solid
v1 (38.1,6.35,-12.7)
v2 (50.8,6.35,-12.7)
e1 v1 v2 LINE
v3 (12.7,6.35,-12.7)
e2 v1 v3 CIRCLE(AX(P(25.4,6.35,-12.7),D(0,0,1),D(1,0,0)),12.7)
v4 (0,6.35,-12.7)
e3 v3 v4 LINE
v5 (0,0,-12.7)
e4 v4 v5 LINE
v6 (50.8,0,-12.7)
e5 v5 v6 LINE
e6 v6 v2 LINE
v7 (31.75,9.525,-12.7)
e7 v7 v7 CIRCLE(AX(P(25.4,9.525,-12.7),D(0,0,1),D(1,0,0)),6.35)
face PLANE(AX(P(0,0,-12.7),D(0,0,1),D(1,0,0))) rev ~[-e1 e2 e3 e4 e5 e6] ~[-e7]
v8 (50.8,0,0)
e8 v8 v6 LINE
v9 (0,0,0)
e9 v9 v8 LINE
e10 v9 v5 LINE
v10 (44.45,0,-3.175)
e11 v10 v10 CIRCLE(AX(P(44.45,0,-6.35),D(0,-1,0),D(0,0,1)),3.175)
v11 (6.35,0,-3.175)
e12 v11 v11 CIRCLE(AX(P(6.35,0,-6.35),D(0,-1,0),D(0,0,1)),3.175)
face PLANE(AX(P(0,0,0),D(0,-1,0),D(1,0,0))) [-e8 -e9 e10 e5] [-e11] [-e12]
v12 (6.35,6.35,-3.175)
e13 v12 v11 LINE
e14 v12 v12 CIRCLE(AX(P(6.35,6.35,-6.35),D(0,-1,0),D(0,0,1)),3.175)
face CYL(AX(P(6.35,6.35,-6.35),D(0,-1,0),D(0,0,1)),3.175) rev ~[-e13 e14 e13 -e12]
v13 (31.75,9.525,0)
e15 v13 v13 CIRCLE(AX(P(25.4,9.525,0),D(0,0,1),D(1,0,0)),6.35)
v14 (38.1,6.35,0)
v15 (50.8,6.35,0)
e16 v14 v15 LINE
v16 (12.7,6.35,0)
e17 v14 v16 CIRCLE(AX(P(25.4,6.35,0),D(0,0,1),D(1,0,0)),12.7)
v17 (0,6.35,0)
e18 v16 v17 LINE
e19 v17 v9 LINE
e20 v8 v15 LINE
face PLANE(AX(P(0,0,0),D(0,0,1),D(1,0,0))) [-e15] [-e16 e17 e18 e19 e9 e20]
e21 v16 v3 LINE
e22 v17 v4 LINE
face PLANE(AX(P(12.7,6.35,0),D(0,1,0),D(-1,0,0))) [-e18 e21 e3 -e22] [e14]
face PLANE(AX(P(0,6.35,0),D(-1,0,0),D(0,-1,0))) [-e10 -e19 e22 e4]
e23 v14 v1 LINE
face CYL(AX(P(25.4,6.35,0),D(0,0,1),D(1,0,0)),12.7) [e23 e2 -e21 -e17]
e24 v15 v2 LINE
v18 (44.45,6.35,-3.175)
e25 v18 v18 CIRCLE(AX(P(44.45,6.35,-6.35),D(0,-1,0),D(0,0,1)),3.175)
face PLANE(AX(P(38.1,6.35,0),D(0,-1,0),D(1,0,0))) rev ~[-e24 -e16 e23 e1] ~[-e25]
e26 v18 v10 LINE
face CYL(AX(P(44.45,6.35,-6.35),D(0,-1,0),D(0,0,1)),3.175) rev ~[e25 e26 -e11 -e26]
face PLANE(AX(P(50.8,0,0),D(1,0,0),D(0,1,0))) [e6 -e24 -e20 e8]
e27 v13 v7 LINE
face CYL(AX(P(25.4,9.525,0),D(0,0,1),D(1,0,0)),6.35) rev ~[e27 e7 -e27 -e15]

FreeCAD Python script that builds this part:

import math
import FreeCAD as App
import Part
import Sketcher
Q = App.Units.Quantity

doc = App.newDocument("Part")
body = doc.addObject("PartDesign::Body", "Body")

# Sketch on XY plane
sketch1 = body.newObject("Sketcher::SketchObject", "Sketch")
sketch1.AttachmentSupport = (doc.getObject("XY_Plane"), [""])
sketch1.MapMode = "FlatFace"
sketch1.addGeometry([
    Part.LineSegment(App.Vector(0, 6.35, 0), App.Vector(0, 0, 0)),  # 0
    Part.LineSegment(App.Vector(0, 0, 0), App.Vector(50.8, 0, 0)),  # 1
    Part.LineSegment(App.Vector(50.8, 0, 0), App.Vector(50.8, 6.35, 0)),  # 2
    Part.LineSegment(App.Vector(50.8, 6.35, 0), App.Vector(38.1, 6.35, 0)),  # 3
    Part.ArcOfCircle(Part.Circle(App.Vector(25.4, 6.35, 0), App.Vector(0, 0, 1), 12.7), math.radians(0), math.radians(180)),  # 4
    Part.LineSegment(App.Vector(12.7, 6.35, 0), App.Vector(0, 6.35, 0)),  # 5
    Part.Circle(App.Vector(25.4, 9.525, 0), App.Vector(0, 0, 1), 6.35),  # 6
], False)
sketch1.addConstraint([
    Sketcher.Constraint("Coincident", 0, 2, 1, 1),
    Sketcher.Constraint("Coincident", 1, 2, 2, 1),
    Sketcher.Constraint("Coincident", 2, 2, 3, 1),
    Sketcher.Constraint("Coincident", 3, 2, 4, 1),
    Sketcher.Constraint("Coincident", 4, 2, 5, 1),
    Sketcher.Constraint("Coincident", 5, 2, 0, 1),
    Sketcher.Constraint("Vertical", 0),
    Sketcher.Constraint("Horizontal", 1),
    Sketcher.Constraint("Vertical", 2),
    Sketcher.Constraint("Horizontal", 3),
    Sketcher.Constraint("Horizontal", 5),
    Sketcher.Constraint("Coincident", 0, 2, -1, 1),
    Sketcher.Constraint("Horizontal", 4, 3, 2, 2),
    Sketcher.Constraint("Horizontal", 3, 2, 4, 2),
    Sketcher.Constraint("Vertical", 4, 3, 6, 3),
    Sketcher.Constraint("Equal", 3, 5),
    Sketcher.Constraint("Diameter", 6, Q("0.5 in")),
    Sketcher.Constraint("Radius", 4, Q("0.5 in")),
    Sketcher.Constraint("DistanceX", 1, 1, 1, 2, Q("2 in")),
    Sketcher.Constraint("DistanceY", 0, 2, 0, 1, Q("0.25 in")),
    Sketcher.Constraint("DistanceY", -1, 1, 6, 3, Q("0.375 in")),
])
pad1 = body.newObject("PartDesign::Pad", "Pad")
pad1.Profile = sketch1
pad1.Length = Q("0.5 in")
pad1.Reversed = True

# Sketch on XZ plane
sketch2 = body.newObject("Sketcher::SketchObject", "Sketch001")
sketch2.AttachmentSupport = (doc.getObject("XZ_Plane"), [""])
sketch2.MapMode = "FlatFace"
sketch2.AttachmentOffset = App.Placement(App.Vector(0, 0, -0.25 * 25.4), App.Rotation())
sketch2.addGeometry([
    Part.Circle(App.Vector(6.35, -6.35, 0), App.Vector(0, 0, 1), 3.175),
    Part.Circle(App.Vector(44.45, -6.35, 0), App.Vector(0, 0, 1), 3.175),
], False)
sketch2.addConstraint([
    Sketcher.Constraint("Equal", 0, 1),
    Sketcher.Constraint("Horizontal", 0, 3, 1, 3),
    Sketcher.Constraint("Diameter", 0, Q("0.25 in")),
    Sketcher.Constraint("DistanceX", 0, 3, 1, 3, Q("1.5 in")),
    Sketcher.Constraint("DistanceX", -1, 1, 0, 3, Q("0.25 in")),
    Sketcher.Constraint("DistanceY", 0, 3, -1, 1, Q("0.25 in")),
])
doc.recompute()
hole = body.newObject("PartDesign::Hole", "Hole")
hole.Profile = sketch2
hole.ThreadType = "None"
hole.Diameter = Q("0.25 in")
hole.DepthType = "Dimension"
hole.Depth = Q("1 in")
hole.DrillPoint = "Angled"
hole.DrillPointAngle = 118
hole.Reversed = True

doc.recompute()
